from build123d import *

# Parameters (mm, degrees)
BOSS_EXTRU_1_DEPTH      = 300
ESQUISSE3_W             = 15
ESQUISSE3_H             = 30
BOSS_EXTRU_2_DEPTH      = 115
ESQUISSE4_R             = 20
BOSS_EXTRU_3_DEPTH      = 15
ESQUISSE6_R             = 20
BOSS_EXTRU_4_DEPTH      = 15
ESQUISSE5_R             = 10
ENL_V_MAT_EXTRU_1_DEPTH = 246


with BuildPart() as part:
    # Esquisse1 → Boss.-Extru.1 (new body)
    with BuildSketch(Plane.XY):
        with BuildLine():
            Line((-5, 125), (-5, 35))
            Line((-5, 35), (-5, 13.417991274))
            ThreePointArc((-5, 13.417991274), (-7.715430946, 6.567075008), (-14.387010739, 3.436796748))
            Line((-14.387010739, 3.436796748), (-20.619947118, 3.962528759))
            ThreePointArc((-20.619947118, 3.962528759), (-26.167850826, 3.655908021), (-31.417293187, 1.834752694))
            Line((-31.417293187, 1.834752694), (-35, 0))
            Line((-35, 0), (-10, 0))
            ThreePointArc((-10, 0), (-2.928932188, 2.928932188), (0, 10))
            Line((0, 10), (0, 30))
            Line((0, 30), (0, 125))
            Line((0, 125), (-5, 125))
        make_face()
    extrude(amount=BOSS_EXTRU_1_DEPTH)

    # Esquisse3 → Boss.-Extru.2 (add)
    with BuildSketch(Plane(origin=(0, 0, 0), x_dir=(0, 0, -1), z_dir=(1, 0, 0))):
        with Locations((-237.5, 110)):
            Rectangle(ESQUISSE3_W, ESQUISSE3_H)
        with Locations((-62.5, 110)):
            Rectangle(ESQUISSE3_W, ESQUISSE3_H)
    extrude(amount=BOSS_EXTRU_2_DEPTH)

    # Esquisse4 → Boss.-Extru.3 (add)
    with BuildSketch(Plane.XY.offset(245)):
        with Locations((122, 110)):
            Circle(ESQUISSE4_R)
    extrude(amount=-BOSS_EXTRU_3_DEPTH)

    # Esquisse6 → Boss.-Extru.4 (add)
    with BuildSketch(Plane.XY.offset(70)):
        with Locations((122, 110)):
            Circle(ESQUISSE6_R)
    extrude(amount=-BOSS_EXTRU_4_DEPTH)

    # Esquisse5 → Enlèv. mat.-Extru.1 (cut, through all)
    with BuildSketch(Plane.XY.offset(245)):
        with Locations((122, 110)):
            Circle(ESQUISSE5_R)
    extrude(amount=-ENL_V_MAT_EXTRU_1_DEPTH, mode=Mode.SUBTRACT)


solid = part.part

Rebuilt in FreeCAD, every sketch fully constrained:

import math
import FreeCAD as App
import Part
import Sketcher

doc = App.newDocument("Part")
body = doc.addObject("PartDesign::Body", "Body")

sketch1 = body.newObject("Sketcher::SketchObject", "Sketch")
sketch1.AttachmentSupport = (doc.getObject("XY_Plane"), [""])
sketch1.MapMode = "FlatFace"
sketch1.addGeometry(Part.LineSegment(App.Vector(-5, 125, 0), App.Vector(-5, 13.4, 0)), False)
sketch1.addGeometry(Part.ArcOfCircle(Part.Circle(App.Vector(-15, 13.4, 0), App.Vector(0, 0, 1), 10), math.radians(-86), math.radians(0)), False)
sketch1.addGeometry(Part.LineSegment(App.Vector(-14.4, 3.4, 0), App.Vector(-20.6, 4, 0)), False)
sketch1.addGeometry(Part.ArcOfCircle(Part.Circle(App.Vector(-22.3, -16, 0), App.Vector(0, 0, 1), 20), math.radians(85), math.radians(117)), False)
sketch1.addGeometry(Part.LineSegment(App.Vector(-31.4, 1.8, 0), App.Vector(-35, 0, 0)), False)
sketch1.addGeometry(Part.LineSegment(App.Vector(-35, 0, 0), App.Vector(-10, 0, 0)), False)
sketch1.addGeometry(Part.ArcOfCircle(Part.Circle(App.Vector(-10, 10, 0), App.Vector(0, 0, 1), 10), math.radians(-90), math.radians(0)), False)
sketch1.addGeometry(Part.LineSegment(App.Vector(0, 10, 0), App.Vector(0, 125, 0)), False)
sketch1.addGeometry(Part.LineSegment(App.Vector(0, 125, 0), App.Vector(-5, 125, 0)), False)
sketch1.addConstraint(Sketcher.Constraint("Tangent", 0, 2, 1, 2))
sketch1.addConstraint(Sketcher.Constraint("Coincident", 1, 1, 2, 1))
sketch1.addConstraint(Sketcher.Constraint("Tangent", 2, 2, 3, 1))
sketch1.addConstraint(Sketcher.Constraint("Tangent", 3, 2, 4, 1))
sketch1.addConstraint(Sketcher.Constraint("Coincident", 4, 2, 5, 1))
sketch1.addConstraint(Sketcher.Constraint("Tangent", 5, 2, 6, 1))
sketch1.addConstraint(Sketcher.Constraint("Tangent", 6, 2, 7, 1))
sketch1.addConstraint(Sketcher.Constraint("Coincident", 7, 2, 8, 1))
sketch1.addConstraint(Sketcher.Constraint("Coincident", 8, 2, 0, 1))
sketch1.addConstraint(Sketcher.Constraint("Vertical", 0))
sketch1.addConstraint(Sketcher.Constraint("Horizontal", 5))
sketch1.addConstraint(Sketcher.Constraint("Vertical", 7))
sketch1.addConstraint(Sketcher.Constraint("Horizontal", 8))
sketch1.addConstraint(Sketcher.Constraint("Equal", 1, 6))
sketch1.addConstraint(Sketcher.Constraint("PointOnObject", 4, 2, -1))
sketch1.addConstraint(Sketcher.Constraint("PointOnObject", 6, 2, -2))
sketch1.addConstraint(Sketcher.Constraint("Radius", 1, 10.0))
sketch1.addConstraint(Sketcher.Constraint("Radius", 3, 20.0))
sketch1.addConstraint(Sketcher.Constraint("DistanceX", 5, 1, 5, 2, 25.0))
sketch1.addConstraint(Sketcher.Constraint("DistanceX", 8, 2, 8, 1, 5.0))
sketch1.addConstraint(Sketcher.Constraint("DistanceY", 7, 1, 7, 2, 115.0))
sketch1.addConstraint(Sketcher.Constraint("DistanceY", 0, 2, 0, 1, 111.582009))
sketch1.addConstraint(Sketcher.Constraint("DistanceY", 3, 3, 1, 1, 19.403501))
sketch1.addConstraint(Sketcher.Constraint("Distance", 2, 6.255069))
sketch1.addConstraint(Sketcher.Constraint("DistanceX", 1, 1, -1, 1, 14.387011))
pad1 = body.newObject("PartDesign::Pad", "Pad")
pad1.Profile = sketch1
pad1.Length = 300

sketch2 = body.newObject("Sketcher::SketchObject", "Sketch001")
sketch2.AttachmentSupport = (doc.getObject("YZ_Plane"), [""])
sketch2.MapMode = "FlatFace"
sketch2.addGeometry(Part.LineSegment(App.Vector(125, 245, 0), App.Vector(95, 245, 0)), False)
sketch2.addGeometry(Part.LineSegment(App.Vector(95, 245, 0), App.Vector(95, 230, 0)), False)
sketch2.addGeometry(Part.LineSegment(App.Vector(95, 230, 0), App.Vector(125, 230, 0)), False)
sketch2.addGeometry(Part.LineSegment(App.Vector(125, 230, 0), App.Vector(125, 245, 0)), False)
sketch2.addGeometry(Part.LineSegment(App.Vector(125, 70, 0), App.Vector(95, 70, 0)), False)
sketch2.addGeometry(Part.LineSegment(App.Vector(95, 70, 0), App.Vector(95, 55, 0)), False)
sketch2.addGeometry(Part.LineSegment(App.Vector(95, 55, 0), App.Vector(125, 55, 0)), False)
sketch2.addGeometry(Part.LineSegment(App.Vector(125, 55, 0), App.Vector(125, 70, 0)), False)
sketch2.addConstraint(Sketcher.Constraint("Coincident", 0, 2, 1, 1))
sketch2.addConstraint(Sketcher.Constraint("Coincident", 1, 2, 2, 1))
sketch2.addConstraint(Sketcher.Constraint("Coincident", 2, 2, 3, 1))
sketch2.addConstraint(Sketcher.Constraint("Coincident", 3, 2, 0, 1))
sketch2.addConstraint(Sketcher.Constraint("Coincident", 4, 2, 5, 1))
sketch2.addConstraint(Sketcher.Constraint("Coincident", 5, 2, 6, 1))
sketch2.addConstraint(Sketcher.Constraint("Coincident", 6, 2, 7, 1))
sketch2.addConstraint(Sketcher.Constraint("Coincident", 7, 2, 4, 1))
sketch2.addConstraint(Sketcher.Constraint("Horizontal", 0))
sketch2.addConstraint(Sketcher.Constraint("Vertical", 1))
sketch2.addConstraint(Sketcher.Constraint("Horizontal", 2))
sketch2.addConstraint(Sketcher.Constraint("Vertical", 3))
sketch2.addConstraint(Sketcher.Constraint("Horizontal", 4))
sketch2.addConstraint(Sketcher.Constraint("Vertical", 5))
sketch2.addConstraint(Sketcher.Constraint("Horizontal", 6))
sketch2.addConstraint(Sketcher.Constraint("Vertical", 7))
sketch2.addConstraint(Sketcher.Constraint("Vertical", 1, 2, 4, 2))
sketch2.addConstraint(Sketcher.Constraint("Vertical", 3, 2, 6, 2))
sketch2.addConstraint(Sketcher.Constraint("Equal", 3, 5))
sketch2.addConstraint(Sketcher.Constraint("DistanceX", 0, 2, 0, 1, 30.0))
sketch2.addConstraint(Sketcher.Constraint("DistanceY", 1, 2, 1, 1, 15.0))
sketch2.addConstraint(Sketcher.Constraint("DistanceX", -1, 1, 0, 2, 95.0))
sketch2.addConstraint(Sketcher.Constraint("DistanceY", -1, 1, 0, 2, 245.0))
sketch2.addConstraint(Sketcher.Constraint("DistanceY", -1, 1, 4, 2, 70.0))
pad2 = body.newObject("PartDesign::Pad", "Pad001")
pad2.Profile = sketch2
pad2.Length = 115

sketch3 = body.newObject("Sketcher::SketchObject", "Sketch002")
sketch3.AttachmentSupport = (doc.getObject("XY_Plane"), [""])
sketch3.MapMode = "FlatFace"
sketch3.AttachmentOffset = App.Placement(App.Vector(0, 0, 245), App.Rotation())
sketch3.addGeometry(Part.Circle(App.Vector(122, 110, 0), App.Vector(0, 0, 1), 20), False)
sketch3.addConstraint(Sketcher.Constraint("Diameter", 0, 40.0))
sketch3.addConstraint(Sketcher.Constraint("DistanceX", -1, 1, 0, 3, 122.0))
sketch3.addConstraint(Sketcher.Constraint("DistanceY", -1, 1, 0, 3, 110.0))
pad3 = body.newObject("PartDesign::Pad", "Pad002")
pad3.Profile = sketch3
pad3.Length = 15
pad3.Reversed = True

sketch4 = body.newObject("Sketcher::SketchObject", "Sketch003")
sketch4.AttachmentSupport = (doc.getObject("XY_Plane"), [""])
sketch4.MapMode = "FlatFace"
sketch4.AttachmentOffset = App.Placement(App.Vector(0, 0, 70), App.Rotation())
sketch4.addGeometry(Part.Circle(App.Vector(122, 110, 0), App.Vector(0, 0, 1), 20), False)
sketch4.addConstraint(Sketcher.Constraint("Diameter", 0, 40.0))
sketch4.addConstraint(Sketcher.Constraint("DistanceX", -1, 1, 0, 3, 122.0))
sketch4.addConstraint(Sketcher.Constraint("DistanceY", -1, 1, 0, 3, 110.0))
pad4 = body.newObject("PartDesign::Pad", "Pad003")
pad4.Profile = sketch4
pad4.Length = 15
pad4.Reversed = True

sketch5 = body.newObject("Sketcher::SketchObject", "Sketch004")
sketch5.AttachmentSupport = (doc.getObject("XY_Plane"), [""])
sketch5.MapMode = "FlatFace"
sketch5.AttachmentOffset = App.Placement(App.Vector(0, 0, 245), App.Rotation())
sketch5.addGeometry(Part.Circle(App.Vector(122, 110, 0), App.Vector(0, 0, 1), 10), False)
sketch5.addConstraint(Sketcher.Constraint("Diameter", 0, 20.0))
sketch5.addConstraint(Sketcher.Constraint("DistanceX", -1, 1, 0, 3, 122.0))
sketch5.addConstraint(Sketcher.Constraint("DistanceY", -1, 1, 0, 3, 110.0))
pocket1 = body.newObject("PartDesign::Pocket", "Pocket")
pocket1.Profile = sketch5
pocket1.Type = "ThroughAll"

doc.recompute()
